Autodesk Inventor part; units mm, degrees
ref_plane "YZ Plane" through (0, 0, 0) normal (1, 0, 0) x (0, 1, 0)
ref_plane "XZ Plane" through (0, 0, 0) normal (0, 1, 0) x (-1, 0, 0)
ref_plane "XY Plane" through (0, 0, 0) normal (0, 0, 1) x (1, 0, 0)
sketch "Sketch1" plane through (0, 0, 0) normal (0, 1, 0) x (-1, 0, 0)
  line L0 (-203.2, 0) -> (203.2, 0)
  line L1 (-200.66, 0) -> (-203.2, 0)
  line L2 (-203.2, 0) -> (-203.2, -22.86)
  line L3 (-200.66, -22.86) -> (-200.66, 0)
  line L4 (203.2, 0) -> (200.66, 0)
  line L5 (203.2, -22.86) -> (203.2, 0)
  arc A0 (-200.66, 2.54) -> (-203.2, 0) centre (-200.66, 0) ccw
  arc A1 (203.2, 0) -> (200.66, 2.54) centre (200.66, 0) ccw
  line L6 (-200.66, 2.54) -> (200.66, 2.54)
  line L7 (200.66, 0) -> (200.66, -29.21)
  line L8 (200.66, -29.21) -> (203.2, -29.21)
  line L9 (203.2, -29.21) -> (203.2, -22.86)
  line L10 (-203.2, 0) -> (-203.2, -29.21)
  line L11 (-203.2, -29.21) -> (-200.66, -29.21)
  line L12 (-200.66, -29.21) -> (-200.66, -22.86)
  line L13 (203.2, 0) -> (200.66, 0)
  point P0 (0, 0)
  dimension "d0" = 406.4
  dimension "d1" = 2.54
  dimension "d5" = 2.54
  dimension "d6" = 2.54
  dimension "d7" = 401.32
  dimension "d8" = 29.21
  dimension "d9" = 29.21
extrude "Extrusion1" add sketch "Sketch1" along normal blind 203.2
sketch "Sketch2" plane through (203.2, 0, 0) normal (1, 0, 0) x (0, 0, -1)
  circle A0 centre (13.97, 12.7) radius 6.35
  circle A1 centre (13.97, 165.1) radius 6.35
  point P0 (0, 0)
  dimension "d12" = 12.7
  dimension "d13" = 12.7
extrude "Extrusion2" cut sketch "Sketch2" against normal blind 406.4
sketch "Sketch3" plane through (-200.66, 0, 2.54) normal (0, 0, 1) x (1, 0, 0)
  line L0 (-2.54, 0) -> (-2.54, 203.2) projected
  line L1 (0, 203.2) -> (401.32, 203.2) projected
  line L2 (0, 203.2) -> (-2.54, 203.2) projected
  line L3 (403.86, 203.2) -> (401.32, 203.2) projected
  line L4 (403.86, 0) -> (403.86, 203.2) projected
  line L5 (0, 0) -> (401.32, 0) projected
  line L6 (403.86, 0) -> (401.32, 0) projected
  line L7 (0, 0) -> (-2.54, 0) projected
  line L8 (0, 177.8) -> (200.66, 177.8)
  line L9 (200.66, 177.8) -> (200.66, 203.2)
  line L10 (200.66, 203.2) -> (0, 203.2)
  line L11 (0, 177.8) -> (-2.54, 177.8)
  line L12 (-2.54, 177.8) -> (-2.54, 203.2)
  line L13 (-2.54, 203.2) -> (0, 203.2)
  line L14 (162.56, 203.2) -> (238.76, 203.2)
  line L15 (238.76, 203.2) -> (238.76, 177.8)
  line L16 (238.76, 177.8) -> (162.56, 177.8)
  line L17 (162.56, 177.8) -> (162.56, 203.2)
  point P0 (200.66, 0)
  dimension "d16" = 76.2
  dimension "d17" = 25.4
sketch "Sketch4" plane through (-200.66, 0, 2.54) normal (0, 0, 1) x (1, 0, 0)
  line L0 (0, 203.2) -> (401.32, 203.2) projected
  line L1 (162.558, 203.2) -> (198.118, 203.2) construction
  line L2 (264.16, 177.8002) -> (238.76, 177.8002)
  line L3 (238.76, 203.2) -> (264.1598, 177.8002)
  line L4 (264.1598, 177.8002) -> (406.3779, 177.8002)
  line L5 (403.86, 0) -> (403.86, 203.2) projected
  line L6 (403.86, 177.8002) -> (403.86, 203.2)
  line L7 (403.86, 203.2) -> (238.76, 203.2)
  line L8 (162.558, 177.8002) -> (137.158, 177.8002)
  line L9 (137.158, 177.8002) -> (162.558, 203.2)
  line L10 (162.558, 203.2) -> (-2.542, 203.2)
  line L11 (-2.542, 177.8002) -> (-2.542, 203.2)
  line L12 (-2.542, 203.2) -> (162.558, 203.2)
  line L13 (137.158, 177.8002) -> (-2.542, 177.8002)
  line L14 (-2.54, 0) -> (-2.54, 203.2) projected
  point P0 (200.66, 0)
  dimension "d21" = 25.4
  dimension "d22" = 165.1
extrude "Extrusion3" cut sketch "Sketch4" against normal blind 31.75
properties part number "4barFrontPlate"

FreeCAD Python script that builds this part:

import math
import FreeCAD as App
import Part
import Sketcher
Q = App.Units.Quantity


def add_polygon(sketch, points):
    """Adds a closed chain of lines whose ends are joined by coincident constraints."""
    first, n = sketch.GeometryCount, len(points)
    for a, b in zip(points, points[1:] + points[:1]):
        sketch.addGeometry(Part.LineSegment(App.Vector(*a, 0), App.Vector(*b, 0)), False)
    for i in range(n):
        sketch.addConstraint(Sketcher.Constraint("Coincident", first + i, 2, first + (i + 1) % n, 1))

doc = App.newDocument("Part")
body = doc.addObject("PartDesign::Body", "Body")

# Sketch on XZ plane
sketch1 = body.newObject("Sketcher::SketchObject", "Sketch")
sketch1.AttachmentSupport = (doc.getObject("XZ_Plane"), [""])
sketch1.MapMode = "FlatFace"
sketch1.addGeometry([
    Part.ArcOfCircle(Part.Circle(App.Vector(200.66, 0, 0), App.Vector(0, 0, 1), 2.54), math.radians(0), math.radians(90)),  # 0
    Part.LineSegment(App.Vector(203.2, 0, 0), App.Vector(203.2, -29.21, 0)),  # 1
    Part.LineSegment(App.Vector(203.2, -29.21, 0), App.Vector(200.66, -29.21, 0)),  # 2
    Part.LineSegment(App.Vector(200.66, -29.21, 0), App.Vector(200.66, 0, 0)),  # 3
    Part.LineSegment(App.Vector(200.66, 0, 0), App.Vector(-200.66, 0, 0)),  # 4
    Part.LineSegment(App.Vector(-200.66, 0, 0), App.Vector(-200.66, -29.21, 0)),  # 5
    Part.LineSegment(App.Vector(-200.66, -29.21, 0), App.Vector(-203.2, -29.21, 0)),  # 6
    Part.LineSegment(App.Vector(-203.2, -29.21, 0), App.Vector(-203.2, 0, 0)),  # 7
    Part.ArcOfCircle(Part.Circle(App.Vector(-200.66, 0, 0), App.Vector(0, 0, 1), 2.54), math.radians(90), math.radians(180)),  # 8
    Part.LineSegment(App.Vector(-200.66, 2.54, 0), App.Vector(200.66, 2.54, 0)),  # 9
], False)
sketch1.addConstraint([
    Sketcher.Constraint("Tangent", 0, 1, 1, 1),
    Sketcher.Constraint("Coincident", 1, 2, 2, 1),
    Sketcher.Constraint("Coincident", 2, 2, 3, 1),
    Sketcher.Constraint("Coincident", 3, 2, 4, 1),
    Sketcher.Constraint("Coincident", 4, 2, 5, 1),
    Sketcher.Constraint("Coincident", 5, 2, 6, 1),
    Sketcher.Constraint("Coincident", 6, 2, 7, 1),
    Sketcher.Constraint("Tangent", 7, 2, 8, 2),
    Sketcher.Constraint("Tangent", 8, 1, 9, 1),
    Sketcher.Constraint("Tangent", 9, 2, 0, 2),
    Sketcher.Constraint("Vertical", 1),
    Sketcher.Constraint("Horizontal", 2),
    Sketcher.Constraint("Vertical", 3),
    Sketcher.Constraint("Horizontal", 4),
    Sketcher.Constraint("Vertical", 5),
    Sketcher.Constraint("Horizontal", 6),
    Sketcher.Constraint("Vertical", 7),
    Sketcher.Constraint("Horizontal", 9),
    Sketcher.Constraint("Coincident", 3, 2, 0, 3),
    Sketcher.Constraint("Coincident", 4, 2, 8, 3),
    Sketcher.Constraint("Symmetric", 0, 3, 8, 3, -1, 1),
    Sketcher.Constraint("Horizontal", 2, 2, 5, 2),
    Sketcher.Constraint("Radius", 0, Q("0.1 in")),
    Sketcher.Constraint("DistanceX", 4, 2, 4, 1, Q("15.8 in")),
    Sketcher.Constraint("DistanceY", 1, 2, 1, 1, Q("1.15 in")),
])
pad1 = body.newObject("PartDesign::Pad", "Pad")
pad1.Profile = sketch1
pad1.Length = Q("8 in")
pad1.Reversed = True

# Sketch on YZ plane
sketch2 = body.newObject("Sketcher::SketchObject", "Sketch001")
sketch2.AttachmentSupport = (doc.getObject("YZ_Plane"), [""])
sketch2.MapMode = "FlatFace"
sketch2.AttachmentOffset = App.Placement(App.Vector(0, 0, 8 * 25.4), App.Rotation())
sketch2.addGeometry([
    Part.Circle(App.Vector(12.7, -13.97, 0), App.Vector(0, 0, 1), 6.35),
    Part.Circle(App.Vector(165.1, -13.97, 0), App.Vector(0, 0, 1), 6.35),
], False)
sketch2.addConstraint([
    Sketcher.Constraint("Equal", 0, 1),
    Sketcher.Constraint("Horizontal", 0, 3, 1, 3),
    Sketcher.Constraint("Diameter", 0, Q("0.5 in")),
    Sketcher.Constraint("DistanceX", -1, 1, 0, 3, Q("0.5 in")),
    Sketcher.Constraint("DistanceX", 0, 3, 1, 3, Q("6 in")),
    Sketcher.Constraint("DistanceY", 0, 3, -1, 1, Q("0.55 in")),
])
pocket1 = body.newObject("PartDesign::Pocket", "Pocket")
pocket1.Profile = sketch2
pocket1.Length = Q("16 in")

# Sketch on XY plane
sketch3 = body.newObject("Sketcher::SketchObject", "Sketch002")
sketch3.AttachmentSupport = (doc.getObject("XY_Plane"), [""])
sketch3.MapMode = "FlatFace"
sketch3.AttachmentOffset = App.Placement(App.Vector(0, 0, 0.1 * 25.4), App.Rotation())
add_polygon(sketch3, [(203.2, 203.2), (38.1, 203.2), (63.5, 177.8002), (203.2, 177.8002)])  # lines 0-3
add_polygon(sketch3, [(-38.102, 203.2), (-203.202, 203.2), (-203.202, 177.8002), (-63.502, 177.8002)])  # lines 4-7
sketch3.addConstraint([
    Sketcher.Constraint("Horizontal", 0),
    Sketcher.Constraint("Horizontal", 2),
    Sketcher.Constraint("Vertical", 3),
    Sketcher.Constraint("Horizontal", 4),
    Sketcher.Constraint("Vertical", 5),
    Sketcher.Constraint("Horizontal", 6),
    Sketcher.Constraint("Perpendicular", 1, 7),
    Sketcher.Constraint("Horizontal", 3, 2, 4, 2),
    Sketcher.Constraint("Horizontal", 2, 2, 5, 2),
    Sketcher.Constraint("Equal", 0, 4),
    Sketcher.Constraint("Equal", 2, 6),
    Sketcher.Constraint("DistanceY", 3, 1, 3, 2, Q("1 in")),
    Sketcher.Constraint("DistanceX", 0, 2, 0, 1, Q("6.5 in")),
    Sketcher.Constraint("DistanceY", -1, 1, 0, 2, Q("8 in")),
    Sketcher.Constraint("DistanceX", -1, 1, 2, 2, Q("8 in")),
    Sketcher.Constraint("DistanceX", 4, 2, -1, 1, 203.202),
])
pocket2 = body.newObject("PartDesign::Pocket", "Pocket001")
pocket2.Profile = sketch3
pocket2.Length = Q("1.25 in")

doc.recompute()
